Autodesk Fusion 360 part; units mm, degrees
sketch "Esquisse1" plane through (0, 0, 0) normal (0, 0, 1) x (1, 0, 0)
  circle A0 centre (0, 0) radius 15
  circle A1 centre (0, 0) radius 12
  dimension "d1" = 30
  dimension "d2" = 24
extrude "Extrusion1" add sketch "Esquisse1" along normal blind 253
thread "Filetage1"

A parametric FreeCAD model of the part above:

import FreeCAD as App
import Part
import Sketcher

V = App.Vector

doc = App.newDocument("Part")
body = doc.addObject("PartDesign::Body", "Body")

# Sketch on XY plane
sketch1 = body.newObject("Sketcher::SketchObject", "Sketch")
sketch1.AttachmentSupport = (doc.getObject("XY_Plane"), [""])
sketch1.MapMode = "FlatFace"
sketch1.addGeometry([
    Part.Circle(V(0, 0, 0), V(0, 0, 1), 15),
    Part.Circle(V(0, 0, 0), V(0, 0, 1), 12),
], False)
sketch1.addConstraint([
    Sketcher.Constraint("Coincident", 0, 3, -1, 1),
    Sketcher.Constraint("Coincident", 1, 3, -1, 1),
    Sketcher.Constraint("Diameter", 0, 30.0),
    Sketcher.Constraint("Diameter", 1, 24.0),
])
pad1 = body.newObject("PartDesign::Pad", "Pad")
pad1.Profile = sketch1
pad1.Length = 253

doc.recompute()
